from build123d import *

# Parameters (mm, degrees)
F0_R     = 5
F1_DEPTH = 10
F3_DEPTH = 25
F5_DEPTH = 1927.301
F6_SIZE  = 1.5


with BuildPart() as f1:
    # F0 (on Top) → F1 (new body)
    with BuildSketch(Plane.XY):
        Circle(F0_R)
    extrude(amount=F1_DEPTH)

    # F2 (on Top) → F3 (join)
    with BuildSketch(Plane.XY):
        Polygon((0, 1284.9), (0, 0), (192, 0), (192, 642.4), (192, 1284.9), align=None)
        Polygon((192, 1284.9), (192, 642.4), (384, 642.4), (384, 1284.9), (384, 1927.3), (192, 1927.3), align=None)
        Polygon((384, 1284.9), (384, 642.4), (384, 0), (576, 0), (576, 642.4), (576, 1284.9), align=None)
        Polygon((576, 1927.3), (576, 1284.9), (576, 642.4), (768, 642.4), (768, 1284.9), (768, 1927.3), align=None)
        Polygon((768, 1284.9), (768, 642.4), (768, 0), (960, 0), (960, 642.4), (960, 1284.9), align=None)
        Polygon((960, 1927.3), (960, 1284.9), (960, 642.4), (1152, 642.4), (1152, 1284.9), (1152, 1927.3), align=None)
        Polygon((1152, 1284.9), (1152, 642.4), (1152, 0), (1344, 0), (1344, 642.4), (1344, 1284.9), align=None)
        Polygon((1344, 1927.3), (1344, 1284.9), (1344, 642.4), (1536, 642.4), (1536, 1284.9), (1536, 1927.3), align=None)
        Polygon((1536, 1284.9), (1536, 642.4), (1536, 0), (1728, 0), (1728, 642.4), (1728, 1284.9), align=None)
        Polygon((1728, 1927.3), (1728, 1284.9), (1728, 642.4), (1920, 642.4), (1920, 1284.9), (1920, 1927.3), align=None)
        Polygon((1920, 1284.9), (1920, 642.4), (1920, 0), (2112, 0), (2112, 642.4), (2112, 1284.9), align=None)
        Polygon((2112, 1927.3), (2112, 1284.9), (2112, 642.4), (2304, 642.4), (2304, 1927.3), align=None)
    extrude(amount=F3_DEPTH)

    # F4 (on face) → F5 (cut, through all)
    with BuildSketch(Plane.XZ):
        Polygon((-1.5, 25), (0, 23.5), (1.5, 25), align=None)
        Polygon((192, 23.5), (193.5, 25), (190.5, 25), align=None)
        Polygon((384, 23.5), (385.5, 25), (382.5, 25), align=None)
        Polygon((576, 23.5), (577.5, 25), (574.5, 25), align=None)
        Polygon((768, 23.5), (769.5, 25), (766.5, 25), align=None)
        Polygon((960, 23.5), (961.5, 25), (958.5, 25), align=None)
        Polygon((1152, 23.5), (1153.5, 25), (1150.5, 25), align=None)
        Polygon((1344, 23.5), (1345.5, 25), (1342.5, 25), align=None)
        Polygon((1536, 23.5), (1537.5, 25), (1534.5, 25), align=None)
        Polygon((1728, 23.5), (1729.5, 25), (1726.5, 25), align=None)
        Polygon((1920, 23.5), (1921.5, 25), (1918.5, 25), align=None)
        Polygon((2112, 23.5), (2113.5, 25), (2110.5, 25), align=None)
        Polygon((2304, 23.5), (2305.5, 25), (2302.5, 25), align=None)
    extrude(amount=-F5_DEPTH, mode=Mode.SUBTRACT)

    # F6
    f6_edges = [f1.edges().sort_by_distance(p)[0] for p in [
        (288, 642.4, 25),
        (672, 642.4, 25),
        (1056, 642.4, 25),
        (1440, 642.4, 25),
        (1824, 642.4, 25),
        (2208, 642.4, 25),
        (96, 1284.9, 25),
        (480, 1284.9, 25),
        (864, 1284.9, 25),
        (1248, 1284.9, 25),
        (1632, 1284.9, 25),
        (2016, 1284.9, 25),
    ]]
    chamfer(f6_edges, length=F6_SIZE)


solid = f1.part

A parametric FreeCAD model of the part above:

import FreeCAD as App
import Part
import Sketcher

V = App.Vector
Q = App.Units.Quantity


def edges_at(feature, points):
    """Names of the edges that pass closest to the given points."""
    edges = feature.Shape.Edges
    near = lambda p: min(range(len(edges)), key=lambda i: edges[i].distToShape(Part.Vertex(*p))[0])
    return sorted({f"Edge{near(p) + 1}" for p in points})


def add_polygon(sketch, points):
    """Adds a closed chain of lines whose ends are joined by coincident constraints."""
    first, n = sketch.GeometryCount, len(points)
    for a, b in zip(points, points[1:] + points[:1]):
        sketch.addGeometry(Part.LineSegment(App.Vector(*a, 0), App.Vector(*b, 0)), False)
    for i in range(n):
        sketch.addConstraint(Sketcher.Constraint("Coincident", first + i, 2, first + (i + 1) % n, 1))

doc = App.newDocument("Part")
body = doc.addObject("PartDesign::Body", "Body")

# Sketch on XY plane
sketch1 = body.newObject("Sketcher::SketchObject", "Sketch")
sketch1.AttachmentSupport = (doc.getObject("XY_Plane"), [""])
sketch1.MapMode = "FlatFace"
sketch1.addGeometry(Part.Circle(V(0, 0, 0), V(0, 0, 1), 5), False)
sketch1.addConstraint([
    Sketcher.Constraint("Coincident", 0, 3, -1, 1),
    Sketcher.Constraint("Diameter", 0, Q("10 mm")),
])
pad1 = body.newObject("PartDesign::Pad", "Pad")
pad1.Profile = sketch1
pad1.Length = 10

# Sketch on XY plane
sketch2 = body.newObject("Sketcher::SketchObject", "Sketch001")
sketch2.AttachmentSupport = (doc.getObject("XY_Plane"), [""])
sketch2.MapMode = "FlatFace"
add_polygon(sketch2, [(0, 1284.9), (0, 0), (192, 0), (192, 642.4), (384, 642.4), (384, 0), (576, 0), (576, 642.4), (768, 642.4), (768, 0), (960, 0), (960, 642.4), (1152, 642.4), (1152, 0), (1344, 0), (1344, 642.4), (1536, 642.4), (1536, 0), (1728, 0), (1728, 642.4), (1920, 642.4), (1920, 0), (2112, 0), (2112, 642.4), (2304, 642.4), (2304, 1927.3), (2112, 1927.3), (2112, 1284.9), (1920, 1284.9), (1920, 1927.3), (1728, 1927.3), (1728, 1284.9), (1536, 1284.9), (1536, 1927.3), (1344, 1927.3), (1344, 1284.9), (1152, 1284.9), (1152, 1927.3), (960, 1927.3), (960, 1284.9), (768, 1284.9), (768, 1927.3), (576, 1927.3), (576, 1284.9), (384, 1284.9), (384, 1927.3), (192, 1927.3), (192, 1284.9)])  # lines 0-47
sketch2.addConstraint([
    Sketcher.Constraint("Vertical", 0),
    Sketcher.Constraint("Horizontal", 1),
    Sketcher.Constraint("Vertical", 2),
    Sketcher.Constraint("Horizontal", 3),
    Sketcher.Constraint("Vertical", 4),
    Sketcher.Constraint("Horizontal", 5),
    Sketcher.Constraint("Vertical", 6),
    Sketcher.Constraint("Horizontal", 7),
    Sketcher.Constraint("Vertical", 8),
    Sketcher.Constraint("Horizontal", 9),
    Sketcher.Constraint("Vertical", 10),
    Sketcher.Constraint("Horizontal", 11),
    Sketcher.Constraint("Vertical", 12),
    Sketcher.Constraint("Horizontal", 13),
    Sketcher.Constraint("Vertical", 14),
    Sketcher.Constraint("Horizontal", 15),
    Sketcher.Constraint("Vertical", 16),
    Sketcher.Constraint("Horizontal", 17),
    Sketcher.Constraint("Vertical", 18),
    Sketcher.Constraint("Horizontal", 19),
    Sketcher.Constraint("Vertical", 20),
    Sketcher.Constraint("Horizontal", 21),
    Sketcher.Constraint("Vertical", 22),
    Sketcher.Constraint("Horizontal", 23),
    Sketcher.Constraint("Vertical", 24),
    Sketcher.Constraint("Horizontal", 25),
    Sketcher.Constraint("Vertical", 26),
    Sketcher.Constraint("Horizontal", 27),
    Sketcher.Constraint("Vertical", 28),
    Sketcher.Constraint("Horizontal", 29),
    Sketcher.Constraint("Vertical", 30),
    Sketcher.Constraint("Horizontal", 31),
    Sketcher.Constraint("Vertical", 32),
    Sketcher.Constraint("Horizontal", 33),
    Sketcher.Constraint("Vertical", 34),
    Sketcher.Constraint("Horizontal", 35),
    Sketcher.Constraint("Vertical", 36),
    Sketcher.Constraint("Horizontal", 37),
    Sketcher.Constraint("Vertical", 38),
    Sketcher.Constraint("Horizontal", 39),
    Sketcher.Constraint("Vertical", 40),
    Sketcher.Constraint("Horizontal", 41),
    Sketcher.Constraint("Vertical", 42),
    Sketcher.Constraint("Horizontal", 43),
    Sketcher.Constraint("Vertical", 44),
    Sketcher.Constraint("Horizontal", 45),
    Sketcher.Constraint("Vertical", 46),
    Sketcher.Constraint("Horizontal", 47),
    Sketcher.Constraint("Coincident", 0, 2, -1, 1),
    Sketcher.Constraint("PointOnObject", 4, 2, -1),
    Sketcher.Constraint("PointOnObject", 8, 2, -1),
    Sketcher.Constraint("PointOnObject", 12, 2, -1),
    Sketcher.Constraint("PointOnObject", 16, 2, -1),
    Sketcher.Constraint("PointOnObject", 20, 2, -1),
    Sketcher.Constraint("Horizontal", 3, 2, 6, 2),
    Sketcher.Constraint("Horizontal", 7, 2, 10, 2),
    Sketcher.Constraint("Horizontal", 11, 2, 14, 2),
    Sketcher.Constraint("Horizontal", 15, 2, 18, 2),
    Sketcher.Constraint("Horizontal", 19, 2, 22, 2),
    Sketcher.Constraint("Horizontal", 25, 2, 28, 2),
    Sketcher.Constraint("Horizontal", 27, 2, 30, 2),
    Sketcher.Constraint("Horizontal", 29, 2, 32, 2),
    Sketcher.Constraint("Horizontal", 31, 2, 34, 2),
    Sketcher.Constraint("Horizontal", 33, 2, 36, 2),
    Sketcher.Constraint("Horizontal", 35, 2, 38, 2),
    Sketcher.Constraint("Horizontal", 37, 2, 40, 2),
    Sketcher.Constraint("Horizontal", 39, 2, 42, 2),
    Sketcher.Constraint("Horizontal", 41, 2, 44, 2),
    Sketcher.Constraint("Horizontal", 43, 2, 46, 2),
    Sketcher.Constraint("Vertical", 22, 2, 25, 2),
    Sketcher.Constraint("Vertical", 20, 2, 27, 2),
    Sketcher.Constraint("Vertical", 18, 2, 29, 2),
    Sketcher.Constraint("Vertical", 16, 2, 31, 2),
    Sketcher.Constraint("Vertical", 14, 2, 33, 2),
    Sketcher.Constraint("Vertical", 12, 2, 35, 2),
    Sketcher.Constraint("Vertical", 10, 2, 37, 2),
    Sketcher.Constraint("Vertical", 8, 2, 39, 2),
    Sketcher.Constraint("Vertical", 6, 2, 41, 2),
    Sketcher.Constraint("Vertical", 4, 2, 43, 2),
    Sketcher.Constraint("Vertical", 2, 2, 45, 2),
    Sketcher.Constraint("Equal", 1, 3),
    Sketcher.Constraint("Equal", 3, 5),
    Sketcher.Constraint("Equal", 5, 7),
    Sketcher.Constraint("Equal", 7, 9),
    Sketcher.Constraint("Equal", 9, 11),
    Sketcher.Constraint("Equal", 11, 13),
    Sketcher.Constraint("Equal", 13, 15),
    Sketcher.Constraint("Equal", 15, 17),
    Sketcher.Constraint("Equal", 17, 19),
    Sketcher.Constraint("Equal", 19, 21),
    Sketcher.Constraint("Equal", 21, 23),
    Sketcher.Constraint("Equal", 0, 24),
    Sketcher.Constraint("DistanceX", 1, 1, 1, 2, Q("192 mm")),
    Sketcher.Constraint("DistanceY", 0, 2, 0, 1, Q("1284.9 mm")),
    Sketcher.Constraint("DistanceY", 2, 1, 2, 2, Q("642.4 mm")),
])
pad2 = body.newObject("PartDesign::Pad", "Pad001")
pad2.Profile = sketch2
pad2.Length = 25

# Sketch on XZ plane
sketch3 = body.newObject("Sketcher::SketchObject", "Sketch002")
sketch3.AttachmentSupport = (doc.getObject("XZ_Plane"), [""])
sketch3.MapMode = "FlatFace"
add_polygon(sketch3, [(-1.5, 25), (0, 23.5), (1.5, 25)])  # lines 0-2
add_polygon(sketch3, [(192, 23.5), (193.5, 25), (190.5, 25)])  # lines 3-5
add_polygon(sketch3, [(384, 23.5), (385.5, 25), (382.5, 25)])  # lines 6-8
add_polygon(sketch3, [(576, 23.5), (577.5, 25), (574.5, 25)])  # lines 9-11
add_polygon(sketch3, [(768, 23.5), (769.5, 25), (766.5, 25)])  # lines 12-14
add_polygon(sketch3, [(960, 23.5), (961.5, 25), (958.5, 25)])  # lines 15-17
add_polygon(sketch3, [(1152, 23.5), (1153.5, 25), (1150.5, 25)])  # lines 18-20
add_polygon(sketch3, [(1344, 23.5), (1345.5, 25), (1342.5, 25)])  # lines 21-23
add_polygon(sketch3, [(1536, 23.5), (1537.5, 25), (1534.5, 25)])  # lines 24-26
add_polygon(sketch3, [(1728, 23.5), (1729.5, 25), (1726.5, 25)])  # lines 27-29
add_polygon(sketch3, [(1920, 23.5), (1921.5, 25), (1918.5, 25)])  # lines 30-32
add_polygon(sketch3, [(2112, 23.5), (2113.5, 25), (2110.5, 25)])  # lines 33-35
add_polygon(sketch3, [(2304, 23.5), (2305.5, 25), (2302.5, 25)])  # lines 36-38
sketch3.addConstraint([
    Sketcher.Constraint("Horizontal", 2),
    Sketcher.Constraint("Horizontal", 4),
    Sketcher.Constraint("Horizontal", 7),
    Sketcher.Constraint("Horizontal", 10),
    Sketcher.Constraint("Horizontal", 13),
    Sketcher.Constraint("Horizontal", 16),
    Sketcher.Constraint("Horizontal", 19),
    Sketcher.Constraint("Horizontal", 22),
    Sketcher.Constraint("Horizontal", 25),
    Sketcher.Constraint("Horizontal", 28),
    Sketcher.Constraint("Horizontal", 31),
    Sketcher.Constraint("Horizontal", 34),
    Sketcher.Constraint("Horizontal", 37),
    Sketcher.Constraint("PointOnObject", 0, 2, -2),
    Sketcher.Constraint("Perpendicular", 0, 1),
    Sketcher.Constraint("Parallel", 1, 3),
    Sketcher.Constraint("Perpendicular", 3, 5),
    Sketcher.Constraint("Perpendicular", 5, 6),
    Sketcher.Constraint("Perpendicular", 6, 8),
    Sketcher.Constraint("Perpendicular", 8, 9),
    Sketcher.Constraint("Perpendicular", 9, 11),
    Sketcher.Constraint("Perpendicular", 11, 12),
    Sketcher.Constraint("Perpendicular", 12, 14),
    Sketcher.Constraint("Perpendicular", 14, 15),
    Sketcher.Constraint("Perpendicular", 15, 17),
    Sketcher.Constraint("Perpendicular", 17, 18),
    Sketcher.Constraint("Perpendicular", 18, 20),
    Sketcher.Constraint("Perpendicular", 20, 21),
    Sketcher.Constraint("Perpendicular", 21, 23),
    Sketcher.Constraint("Perpendicular", 23, 24),
    Sketcher.Constraint("Perpendicular", 24, 26),
    Sketcher.Constraint("Perpendicular", 26, 27),
    Sketcher.Constraint("Perpendicular", 27, 29),
    Sketcher.Constraint("Perpendicular", 29, 30),
    Sketcher.Constraint("Perpendicular", 30, 32),
    Sketcher.Constraint("Perpendicular", 32, 33),
    Sketcher.Constraint("Perpendicular", 33, 35),
    Sketcher.Constraint("Perpendicular", 35, 36),
    Sketcher.Constraint("Perpendicular", 36, 38),
    Sketcher.Constraint("Horizontal", 2, 2, 3, 2),
    Sketcher.Constraint("Horizontal", 0, 2, 5, 2),
    Sketcher.Constraint("Horizontal", 4, 2, 6, 2),
    Sketcher.Constraint("Horizontal", 5, 2, 8, 2),
    Sketcher.Constraint("Horizontal", 7, 2, 9, 2),
    Sketcher.Constraint("Horizontal", 8, 2, 11, 2),
    Sketcher.Constraint("Horizontal", 10, 2, 12, 2),
    Sketcher.Constraint("Horizontal", 11, 2, 14, 2),
    Sketcher.Constraint("Horizontal", 13, 2, 15, 2),
    Sketcher.Constraint("Horizontal", 14, 2, 17, 2),
    Sketcher.Constraint("Horizontal", 16, 2, 18, 2),
    Sketcher.Constraint("Horizontal", 17, 2, 20, 2),
    Sketcher.Constraint("Horizontal", 19, 2, 21, 2),
    Sketcher.Constraint("Horizontal", 20, 2, 23, 2),
    Sketcher.Constraint("Horizontal", 22, 2, 24, 2),
    Sketcher.Constraint("Horizontal", 23, 2, 26, 2),
    Sketcher.Constraint("Horizontal", 25, 2, 27, 2),
    Sketcher.Constraint("Horizontal", 26, 2, 29, 2),
    Sketcher.Constraint("Horizontal", 28, 2, 30, 2),
    Sketcher.Constraint("Horizontal", 29, 2, 32, 2),
    Sketcher.Constraint("Horizontal", 31, 2, 33, 2),
    Sketcher.Constraint("Horizontal", 32, 2, 35, 2),
    Sketcher.Constraint("Horizontal", 34, 2, 36, 2),
    Sketcher.Constraint("Horizontal", 35, 2, 38, 2),
    Sketcher.Constraint("Equal", 0, 1),
    Sketcher.Constraint("DistanceX", 2, 2, 2, 1, Q("3 mm")),
    Sketcher.Constraint("DistanceY", -1, 1, 1, 2, Q("25 mm")),
    Sketcher.Constraint("DistanceX", -1, 1, 5, 2, Q("192 mm")),
    Sketcher.Constraint("DistanceX", -1, 1, 8, 2, Q("384 mm")),
    Sketcher.Constraint("DistanceX", -1, 1, 11, 2, Q("576 mm")),
    Sketcher.Constraint("DistanceX", -1, 1, 14, 2, Q("768 mm")),
    Sketcher.Constraint("DistanceX", -1, 1, 17, 2, Q("960 mm")),
    Sketcher.Constraint("DistanceX", -1, 1, 20, 2, Q("1152 mm")),
    Sketcher.Constraint("DistanceX", -1, 1, 23, 2, Q("1344 mm")),
    Sketcher.Constraint("DistanceX", -1, 1, 26, 2, Q("1536 mm")),
    Sketcher.Constraint("DistanceX", -1, 1, 29, 2, Q("1728 mm")),
    Sketcher.Constraint("DistanceX", -1, 1, 32, 2, Q("1920 mm")),
    Sketcher.Constraint("DistanceX", -1, 1, 35, 2, Q("2112 mm")),
    Sketcher.Constraint("DistanceX", -1, 1, 38, 2, Q("2304 mm")),
])
pocket1 = body.newObject("PartDesign::Pocket", "Pocket")
pocket1.Profile = sketch3
pocket1.Type = "ThroughAll"
doc.recompute()

chamfer = body.newObject("PartDesign::Chamfer", "Chamfer")
chamfer.Base = (pocket1, edges_at(pocket1, [
    (288, 642.4, 25),
    (672, 642.4, 25),
    (1056, 642.4, 25),
    (1440, 642.4, 25),
    (1824, 642.4, 25),
    (2208, 642.4, 25),
    (96, 1284.9, 25),
    (480, 1284.9, 25),
    (864, 1284.9, 25),
    (1248, 1284.9, 25),
    (1632, 1284.9, 25),
    (2016, 1284.9, 25),
]))
chamfer.Size = 1.5

doc.recompute()
